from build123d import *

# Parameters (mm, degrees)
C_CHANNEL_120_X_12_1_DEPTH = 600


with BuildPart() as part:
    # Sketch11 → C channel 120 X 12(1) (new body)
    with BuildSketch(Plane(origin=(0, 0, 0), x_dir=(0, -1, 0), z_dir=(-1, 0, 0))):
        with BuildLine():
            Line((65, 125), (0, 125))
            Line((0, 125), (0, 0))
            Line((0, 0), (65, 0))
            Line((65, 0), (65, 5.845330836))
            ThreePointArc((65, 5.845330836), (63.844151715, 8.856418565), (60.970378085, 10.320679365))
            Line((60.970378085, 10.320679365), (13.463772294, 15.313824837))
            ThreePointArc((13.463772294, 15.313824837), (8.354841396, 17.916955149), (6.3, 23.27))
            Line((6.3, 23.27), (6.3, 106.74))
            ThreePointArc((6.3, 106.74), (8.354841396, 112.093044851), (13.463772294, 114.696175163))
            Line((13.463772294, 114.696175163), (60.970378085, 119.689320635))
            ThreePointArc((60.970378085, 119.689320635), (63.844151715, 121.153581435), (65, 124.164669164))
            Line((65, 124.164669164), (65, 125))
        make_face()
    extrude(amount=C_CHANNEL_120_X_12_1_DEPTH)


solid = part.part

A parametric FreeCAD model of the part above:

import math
import FreeCAD as App
import Part
import Sketcher

V = App.Vector
Q = App.Units.Quantity

doc = App.newDocument("Part")
body = doc.addObject("PartDesign::Body", "Body")

sketch1 = body.newObject("Sketcher::SketchObject", "Sketch")
sketch1.AttachmentSupport = (doc.getObject("YZ_Plane"), [""])
sketch1.MapMode = "FlatFace"
sketch1.addGeometry([
    Part.LineSegment(V(-65, 125, 0), V(0, 125, 0)),
    Part.LineSegment(V(0, 125, 0), V(0, 0, 0)),
    Part.LineSegment(V(0, 0, 0), V(-65, 0, 0)),
    Part.LineSegment(V(-65, 0, 0), V(-65, 5.8, 0)),
    Part.ArcOfCircle(Part.Circle(V(-60.5, 5.8, 0), V(0, 0, 1), 4.5), math.radians(96), math.radians(180)),
    Part.LineSegment(V(-61, 10.3, 0), V(-13.5, 15.3, 0)),
    Part.ArcOfCircle(Part.Circle(V(-14.3, 23.3, 0), V(0, 0, 1), 8), math.radians(-84), math.radians(0)),
    Part.LineSegment(V(-6.3, 23.3, 0), V(-6.3, 106.7, 0)),
    Part.ArcOfCircle(Part.Circle(V(-14.3, 106.7, 0), V(0, 0, 1), 8), math.radians(0), math.radians(84)),
    Part.LineSegment(V(-13.5, 114.7, 0), V(-61, 119.7, 0)),
    Part.ArcOfCircle(Part.Circle(V(-60.5, 124.2, 0), V(0, 0, 1), 4.5), math.radians(180), math.radians(264)),
    Part.LineSegment(V(-65, 124.2, 0), V(-65, 125, 0)),
], False)
sketch1.addConstraint([
    Sketcher.Constraint("Coincident", 0, 2, 1, 1),
    Sketcher.Constraint("Coincident", 1, 2, 2, 1),
    Sketcher.Constraint("Coincident", 2, 2, 3, 1),
    Sketcher.Constraint("Tangent", 3, 2, 4, 2),
    Sketcher.Constraint("Tangent", 4, 1, 5, 1),
    Sketcher.Constraint("Tangent", 5, 2, 6, 1),
    Sketcher.Constraint("Tangent", 6, 2, 7, 1),
    Sketcher.Constraint("Tangent", 7, 2, 8, 1),
    Sketcher.Constraint("Tangent", 8, 2, 9, 1),
    Sketcher.Constraint("Tangent", 9, 2, 10, 2),
    Sketcher.Constraint("Tangent", 10, 1, 11, 1),
    Sketcher.Constraint("Coincident", 11, 2, 0, 1),
    Sketcher.Constraint("Horizontal", 0),
    Sketcher.Constraint("Vertical", 1),
    Sketcher.Constraint("Horizontal", 2),
    Sketcher.Constraint("Vertical", 3),
    Sketcher.Constraint("Vertical", 7),
    Sketcher.Constraint("Vertical", 11),
    Sketcher.Constraint("Coincident", 1, 2, -1, 1),
    Sketcher.Constraint("Equal", 6, 8),
    Sketcher.Constraint("Equal", 4, 10),
    Sketcher.Constraint("Vertical", 4, 3, 10, 3),
    Sketcher.Constraint("Vertical", 5, 2, 8, 2),
    Sketcher.Constraint("Radius", 6, 8.0),
    Sketcher.Constraint("Radius", 4, 4.5),
    Sketcher.Constraint("DistanceX", 0, 1, 0, 2, 65.0),
    Sketcher.Constraint("DistanceY", 1, 2, 1, 1, 125.0),
    Sketcher.Constraint("Angle", 5, Q("6 deg")),
    Sketcher.Constraint("DistanceY", 7, 1, 7, 2, 83.47),
    Sketcher.Constraint("DistanceX", 6, 3, -1, 1, 14.3),
    Sketcher.Constraint("DistanceY", -1, 1, 6, 3, 23.27),
])
pad1 = body.newObject("PartDesign::Pad", "Pad")
pad1.Profile = sketch1
pad1.Length = 600
pad1.Reversed = True

doc.recompute()
